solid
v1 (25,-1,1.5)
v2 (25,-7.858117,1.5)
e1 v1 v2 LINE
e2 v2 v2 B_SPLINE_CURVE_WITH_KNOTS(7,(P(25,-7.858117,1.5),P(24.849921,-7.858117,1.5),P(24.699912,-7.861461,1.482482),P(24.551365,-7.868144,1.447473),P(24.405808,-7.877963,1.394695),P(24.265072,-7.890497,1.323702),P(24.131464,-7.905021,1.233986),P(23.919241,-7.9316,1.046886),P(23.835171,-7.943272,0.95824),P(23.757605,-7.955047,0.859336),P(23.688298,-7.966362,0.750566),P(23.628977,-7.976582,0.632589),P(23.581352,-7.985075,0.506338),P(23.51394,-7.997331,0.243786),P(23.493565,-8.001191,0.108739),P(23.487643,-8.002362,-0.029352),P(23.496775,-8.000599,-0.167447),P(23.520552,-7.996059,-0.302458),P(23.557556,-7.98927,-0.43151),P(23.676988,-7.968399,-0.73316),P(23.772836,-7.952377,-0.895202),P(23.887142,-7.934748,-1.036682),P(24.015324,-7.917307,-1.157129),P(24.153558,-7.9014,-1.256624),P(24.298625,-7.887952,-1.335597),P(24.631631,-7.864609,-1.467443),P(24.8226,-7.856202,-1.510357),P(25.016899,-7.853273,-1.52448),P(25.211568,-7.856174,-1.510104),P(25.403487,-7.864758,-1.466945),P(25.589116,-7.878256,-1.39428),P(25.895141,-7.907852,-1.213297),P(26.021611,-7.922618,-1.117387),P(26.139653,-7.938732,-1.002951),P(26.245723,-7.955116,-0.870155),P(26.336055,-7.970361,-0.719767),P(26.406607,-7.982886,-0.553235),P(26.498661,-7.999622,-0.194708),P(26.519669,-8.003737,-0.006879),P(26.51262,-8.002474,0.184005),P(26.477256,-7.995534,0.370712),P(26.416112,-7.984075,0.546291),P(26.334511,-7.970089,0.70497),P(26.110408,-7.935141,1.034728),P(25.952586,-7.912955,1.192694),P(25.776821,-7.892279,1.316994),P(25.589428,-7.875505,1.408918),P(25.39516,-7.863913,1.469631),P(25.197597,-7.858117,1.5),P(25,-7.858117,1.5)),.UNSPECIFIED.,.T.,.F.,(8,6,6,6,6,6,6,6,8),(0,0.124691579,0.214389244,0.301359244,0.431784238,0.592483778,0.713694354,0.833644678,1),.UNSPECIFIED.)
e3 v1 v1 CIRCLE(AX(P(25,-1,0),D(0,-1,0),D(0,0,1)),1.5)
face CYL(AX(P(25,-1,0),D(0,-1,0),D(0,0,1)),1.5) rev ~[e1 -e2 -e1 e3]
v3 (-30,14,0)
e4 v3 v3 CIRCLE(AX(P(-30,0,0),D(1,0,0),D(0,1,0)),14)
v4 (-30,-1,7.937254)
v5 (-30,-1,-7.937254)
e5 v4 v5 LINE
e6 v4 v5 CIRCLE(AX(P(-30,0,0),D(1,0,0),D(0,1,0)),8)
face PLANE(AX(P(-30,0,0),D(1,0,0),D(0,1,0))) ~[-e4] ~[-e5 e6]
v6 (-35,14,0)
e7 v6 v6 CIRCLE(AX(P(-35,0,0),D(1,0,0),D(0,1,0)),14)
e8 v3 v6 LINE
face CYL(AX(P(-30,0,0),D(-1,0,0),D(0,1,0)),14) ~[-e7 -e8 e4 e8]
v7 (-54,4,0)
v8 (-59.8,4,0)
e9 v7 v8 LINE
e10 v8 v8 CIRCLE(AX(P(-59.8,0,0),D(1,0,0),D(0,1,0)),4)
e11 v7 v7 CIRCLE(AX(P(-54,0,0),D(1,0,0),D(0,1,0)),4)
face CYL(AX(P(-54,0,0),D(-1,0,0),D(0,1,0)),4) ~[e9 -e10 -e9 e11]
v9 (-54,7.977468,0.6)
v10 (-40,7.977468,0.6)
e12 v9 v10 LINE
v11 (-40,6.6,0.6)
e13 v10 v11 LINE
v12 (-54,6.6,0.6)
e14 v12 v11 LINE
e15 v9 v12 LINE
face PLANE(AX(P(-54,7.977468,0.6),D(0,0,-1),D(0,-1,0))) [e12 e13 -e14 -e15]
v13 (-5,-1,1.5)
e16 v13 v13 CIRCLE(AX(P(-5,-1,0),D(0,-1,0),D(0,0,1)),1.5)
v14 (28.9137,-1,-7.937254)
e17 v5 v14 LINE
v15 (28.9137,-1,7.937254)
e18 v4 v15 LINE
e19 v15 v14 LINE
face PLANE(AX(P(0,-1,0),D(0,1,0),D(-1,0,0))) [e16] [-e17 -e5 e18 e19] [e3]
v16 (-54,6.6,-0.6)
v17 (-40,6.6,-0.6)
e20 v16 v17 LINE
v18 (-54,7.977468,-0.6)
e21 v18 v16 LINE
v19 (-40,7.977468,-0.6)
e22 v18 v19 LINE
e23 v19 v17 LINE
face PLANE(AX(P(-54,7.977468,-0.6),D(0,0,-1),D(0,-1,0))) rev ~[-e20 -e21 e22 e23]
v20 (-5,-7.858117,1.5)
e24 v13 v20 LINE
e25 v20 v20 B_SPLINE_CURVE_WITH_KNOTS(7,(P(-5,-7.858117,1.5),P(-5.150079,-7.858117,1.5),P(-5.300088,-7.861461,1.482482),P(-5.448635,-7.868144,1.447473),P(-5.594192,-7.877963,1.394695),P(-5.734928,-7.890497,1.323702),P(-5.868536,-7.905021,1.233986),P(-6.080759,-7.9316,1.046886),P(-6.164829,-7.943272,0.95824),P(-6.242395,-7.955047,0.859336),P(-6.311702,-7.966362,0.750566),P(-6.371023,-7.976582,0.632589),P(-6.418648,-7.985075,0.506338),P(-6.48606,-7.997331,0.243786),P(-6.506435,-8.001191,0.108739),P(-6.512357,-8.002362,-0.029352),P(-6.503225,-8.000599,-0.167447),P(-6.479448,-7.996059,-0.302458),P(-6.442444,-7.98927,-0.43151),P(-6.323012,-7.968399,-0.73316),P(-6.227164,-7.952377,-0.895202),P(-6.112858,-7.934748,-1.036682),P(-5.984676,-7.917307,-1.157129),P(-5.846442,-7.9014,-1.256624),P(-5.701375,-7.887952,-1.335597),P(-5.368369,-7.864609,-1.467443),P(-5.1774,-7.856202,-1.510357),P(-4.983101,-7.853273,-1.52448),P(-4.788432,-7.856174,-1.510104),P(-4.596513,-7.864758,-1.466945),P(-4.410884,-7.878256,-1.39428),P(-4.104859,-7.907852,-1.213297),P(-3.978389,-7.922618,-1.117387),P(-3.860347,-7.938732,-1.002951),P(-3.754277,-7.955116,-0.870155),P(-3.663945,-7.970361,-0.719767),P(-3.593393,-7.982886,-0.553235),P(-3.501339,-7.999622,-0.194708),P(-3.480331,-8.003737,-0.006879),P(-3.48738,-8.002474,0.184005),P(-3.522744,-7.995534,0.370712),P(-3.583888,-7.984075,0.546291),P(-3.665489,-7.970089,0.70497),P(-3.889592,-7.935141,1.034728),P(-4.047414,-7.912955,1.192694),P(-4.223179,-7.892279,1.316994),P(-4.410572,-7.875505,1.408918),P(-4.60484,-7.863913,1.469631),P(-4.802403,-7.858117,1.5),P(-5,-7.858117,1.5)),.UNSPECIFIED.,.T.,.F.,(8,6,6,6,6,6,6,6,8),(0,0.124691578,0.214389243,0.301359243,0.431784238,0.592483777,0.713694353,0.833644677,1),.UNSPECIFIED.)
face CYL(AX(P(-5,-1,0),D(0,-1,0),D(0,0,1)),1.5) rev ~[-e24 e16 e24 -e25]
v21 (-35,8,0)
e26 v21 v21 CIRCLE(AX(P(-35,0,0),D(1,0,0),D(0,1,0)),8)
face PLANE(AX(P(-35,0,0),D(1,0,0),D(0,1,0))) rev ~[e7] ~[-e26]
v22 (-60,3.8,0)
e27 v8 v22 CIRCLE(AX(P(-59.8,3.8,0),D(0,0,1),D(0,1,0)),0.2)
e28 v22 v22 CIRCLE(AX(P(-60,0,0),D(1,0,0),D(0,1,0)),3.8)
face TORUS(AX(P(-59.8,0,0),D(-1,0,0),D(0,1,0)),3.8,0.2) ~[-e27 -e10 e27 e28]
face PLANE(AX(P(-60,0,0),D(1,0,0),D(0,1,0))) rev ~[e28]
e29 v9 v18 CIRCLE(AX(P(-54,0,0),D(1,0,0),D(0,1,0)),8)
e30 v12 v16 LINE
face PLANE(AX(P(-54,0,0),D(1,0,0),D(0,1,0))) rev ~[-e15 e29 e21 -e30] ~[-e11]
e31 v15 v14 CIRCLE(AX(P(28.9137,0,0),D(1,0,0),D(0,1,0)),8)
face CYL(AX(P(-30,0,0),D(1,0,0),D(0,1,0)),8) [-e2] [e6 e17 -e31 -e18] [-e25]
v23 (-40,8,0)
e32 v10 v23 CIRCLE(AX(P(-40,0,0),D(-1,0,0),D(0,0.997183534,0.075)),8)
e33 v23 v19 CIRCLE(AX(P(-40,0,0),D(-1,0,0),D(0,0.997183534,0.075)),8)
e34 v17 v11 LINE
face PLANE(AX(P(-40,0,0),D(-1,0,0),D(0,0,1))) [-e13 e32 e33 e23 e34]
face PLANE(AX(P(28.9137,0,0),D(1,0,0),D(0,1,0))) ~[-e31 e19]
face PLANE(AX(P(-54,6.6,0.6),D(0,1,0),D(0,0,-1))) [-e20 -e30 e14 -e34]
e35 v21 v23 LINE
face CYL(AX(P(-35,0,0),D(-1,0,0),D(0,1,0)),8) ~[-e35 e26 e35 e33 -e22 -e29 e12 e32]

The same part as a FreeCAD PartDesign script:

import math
import FreeCAD as App
import Part
import Sketcher

V = App.Vector
Q = App.Units.Quantity


def edges_at(feature, points):
    """Names of the edges that pass closest to the given points."""
    edges = feature.Shape.Edges
    near = lambda p: min(range(len(edges)), key=lambda i: edges[i].distToShape(Part.Vertex(*p))[0])
    return sorted({f"Edge{near(p) + 1}" for p in points})

doc = App.newDocument("Part")
body = doc.addObject("PartDesign::Body", "Body")

sketch1 = body.newObject("Sketcher::SketchObject", "Sketch")
sketch1.AttachmentSupport = (doc.getObject("XY_Plane"), [""])
sketch1.MapMode = "FlatFace"
sketch1.addGeometry([
    Part.LineSegment(V(28.9137, 8, 0), V(-30, 8, 0)),
    Part.LineSegment(V(-30, 8, 0), V(-30, 14, 0)),
    Part.LineSegment(V(-30, 14, 0), V(-35, 14, 0)),
    Part.LineSegment(V(-35, 14, 0), V(-35, 8, 0)),
    Part.LineSegment(V(-35, 8, 0), V(-54, 8, 0)),
    Part.LineSegment(V(-54, 8, 0), V(-54, 4, 0)),
    Part.LineSegment(V(-54, 4, 0), V(-60, 4, 0)),
    Part.LineSegment(V(-60, 4, 0), V(-60, 0, 0)),
    Part.LineSegment(V(-60, 0, 0), V(28.9137, 0, 0)),
    Part.LineSegment(V(28.9137, 0, 0), V(28.9137, 8, 0)),
], False)
sketch1.addConstraint([
    Sketcher.Constraint("Coincident", 0, 2, 1, 1),
    Sketcher.Constraint("Coincident", 1, 2, 2, 1),
    Sketcher.Constraint("Coincident", 2, 2, 3, 1),
    Sketcher.Constraint("Coincident", 3, 2, 4, 1),
    Sketcher.Constraint("Coincident", 4, 2, 5, 1),
    Sketcher.Constraint("Coincident", 5, 2, 6, 1),
    Sketcher.Constraint("Coincident", 6, 2, 7, 1),
    Sketcher.Constraint("Coincident", 7, 2, 8, 1),
    Sketcher.Constraint("Coincident", 8, 2, 9, 1),
    Sketcher.Constraint("Coincident", 9, 2, 0, 1),
    Sketcher.Constraint("Horizontal", 0),
    Sketcher.Constraint("Vertical", 1),
    Sketcher.Constraint("Horizontal", 2),
    Sketcher.Constraint("Vertical", 3),
    Sketcher.Constraint("Horizontal", 4),
    Sketcher.Constraint("Vertical", 5),
    Sketcher.Constraint("Horizontal", 6),
    Sketcher.Constraint("Vertical", 7),
    Sketcher.Constraint("Horizontal", 8),
    Sketcher.Constraint("Vertical", 9),
    Sketcher.Constraint("PointOnObject", 7, 2, -1),
    Sketcher.Constraint("Horizontal", 0, 2, 3, 2),
    Sketcher.Constraint("Equal", 6, 1),
    Sketcher.Constraint("Equal", 5, 7),
    Sketcher.Constraint("DistanceX", 2, 2, 2, 1, Q("5 mm")),
    Sketcher.Constraint("DistanceX", 4, 2, 4, 1, Q("19 mm")),
    Sketcher.Constraint("DistanceX", 6, 2, 6, 1, Q("6 mm")),
    Sketcher.Constraint("DistanceY", 5, 2, 5, 1, Q("4 mm")),
    Sketcher.Constraint("DistanceX", 0, 2, -1, 1, Q("30 mm")),
    Sketcher.Constraint("DistanceX", 0, 2, 0, 1, Q("58.9137 mm")),
])
revolution = body.newObject("PartDesign::Revolution", "Revolution")
revolution.Profile = sketch1
revolution.ReferenceAxis = (sketch1, ["H_Axis"])
revolution.Angle = 360

sketch2 = body.newObject("Sketcher::SketchObject", "Sketch001")
sketch2.AttachmentSupport = (doc.getObject("XZ_Plane"), [""])
sketch2.MapMode = "FlatFace"
sketch2.addGeometry([
    Part.LineSegment(V(-30, 8, 0), V(28.9137, 8, 0)),
    Part.LineSegment(V(28.9137, 8, 0), V(28.9137, -8, 0)),
    Part.LineSegment(V(28.9137, -8, 0), V(-30, -8, 0)),
    Part.LineSegment(V(-30, -8, 0), V(-30, 8, 0)),
], False)
sketch2.addConstraint([
    Sketcher.Constraint("Coincident", 0, 2, 1, 1),
    Sketcher.Constraint("Coincident", 1, 2, 2, 1),
    Sketcher.Constraint("Coincident", 2, 2, 3, 1),
    Sketcher.Constraint("Coincident", 3, 2, 0, 1),
    Sketcher.Constraint("Horizontal", 0),
    Sketcher.Constraint("Vertical", 1),
    Sketcher.Constraint("Horizontal", 2),
    Sketcher.Constraint("Vertical", 3),
    Sketcher.Constraint("DistanceY", 1, 2, 1, 1, Q("16 mm")),
    Sketcher.Constraint("DistanceY", -1, 1, 0, 2, Q("8 mm")),
    Sketcher.Constraint("DistanceX", 2, 2, -1, 1, Q("30 mm")),
    Sketcher.Constraint("DistanceX", 0, 1, 0, 2, Q("58.9137 mm")),
])
pocket1 = body.newObject("PartDesign::Pocket", "Pocket")
pocket1.Profile = sketch2
pocket1.Type = "TwoLengths"
pocket1.Length = 10
pocket1.Length2 = 1

sketch3 = body.newObject("Sketcher::SketchObject", "Sketch002")
sketch3.AttachmentSupport = (doc.getObject("XZ_Plane"), [""])
sketch3.MapMode = "FlatFace"
sketch3.AttachmentOffset = App.Placement(V(0, 0, 1), App.Rotation())
sketch3.addGeometry([
    Part.Circle(V(-5, 0, 0), V(0, 0, 1), 1.5),
    Part.Circle(V(25, 0, 0), V(0, 0, 1), 1.5),
], False)
sketch3.addConstraint([
    Sketcher.Constraint("Equal", 0, 1),
    Sketcher.Constraint("PointOnObject", 0, 3, -1),
    Sketcher.Constraint("PointOnObject", 1, 3, -1),
    Sketcher.Constraint("Diameter", 0, Q("3 mm")),
    Sketcher.Constraint("DistanceX", 0, 3, -1, 1, Q("5 mm")),
    Sketcher.Constraint("DistanceX", -1, 1, 1, 3, Q("25 mm")),
])
doc.recompute()
hole = body.newObject("PartDesign::Hole", "Hole")
hole.Profile = sketch3
hole.ThreadType = "None"
hole.Diameter = 3
hole.DepthType = "ThroughAll"
hole.Reversed = True
doc.recompute()

fillet = body.newObject("PartDesign::Fillet", "Fillet")
fillet.Base = (hole, edges_at(hole, [(-60, -4, 0)]))
fillet.Radius = 0.2

sketch4 = body.newObject("Sketcher::SketchObject", "Sketch003")
sketch4.AttachmentSupport = (doc.getObject("YZ_Plane"), [""])
sketch4.MapMode = "FlatFace"
sketch4.AttachmentOffset = App.Placement(V(0, 0, -54), App.Rotation())
sketch4.addGeometry([
    Part.LineSegment(V(6.6, 0.6, 0), V(7.977468, 0.6, 0)),
    Part.ArcOfCircle(Part.Circle(V(0, 0, 0), V(0, 0, 1), 8), math.radians(-4.301222), math.radians(4.301222)),
    Part.LineSegment(V(7.977468, -0.6, 0), V(6.6, -0.6, 0)),
    Part.LineSegment(V(6.6, -0.6, 0), V(6.6, 0.6, 0)),
], False)
sketch4.addConstraint([
    Sketcher.Constraint("Coincident", 0, 2, 1, 2),
    Sketcher.Constraint("Coincident", 1, 1, 2, 1),
    Sketcher.Constraint("Coincident", 2, 2, 3, 1),
    Sketcher.Constraint("Coincident", 3, 2, 0, 1),
    Sketcher.Constraint("Horizontal", 0),
    Sketcher.Constraint("Horizontal", 2),
    Sketcher.Constraint("Vertical", 3),
    Sketcher.Constraint("Coincident", 1, 3, -1, 1),
    Sketcher.Constraint("Vertical", 0, 2, 1, 1),
    Sketcher.Constraint("Radius", 1, Q("8 mm")),
    Sketcher.Constraint("DistanceY", -1, 1, 0, 2, Q("0.6 mm")),
    Sketcher.Constraint("DistanceX", -1, 1, 2, 2, Q("6.6 mm")),
])
pocket2 = body.newObject("PartDesign::Pocket", "Pocket001")
pocket2.Profile = sketch4
pocket2.Length = 14
pocket2.Reversed = True

doc.recompute()
